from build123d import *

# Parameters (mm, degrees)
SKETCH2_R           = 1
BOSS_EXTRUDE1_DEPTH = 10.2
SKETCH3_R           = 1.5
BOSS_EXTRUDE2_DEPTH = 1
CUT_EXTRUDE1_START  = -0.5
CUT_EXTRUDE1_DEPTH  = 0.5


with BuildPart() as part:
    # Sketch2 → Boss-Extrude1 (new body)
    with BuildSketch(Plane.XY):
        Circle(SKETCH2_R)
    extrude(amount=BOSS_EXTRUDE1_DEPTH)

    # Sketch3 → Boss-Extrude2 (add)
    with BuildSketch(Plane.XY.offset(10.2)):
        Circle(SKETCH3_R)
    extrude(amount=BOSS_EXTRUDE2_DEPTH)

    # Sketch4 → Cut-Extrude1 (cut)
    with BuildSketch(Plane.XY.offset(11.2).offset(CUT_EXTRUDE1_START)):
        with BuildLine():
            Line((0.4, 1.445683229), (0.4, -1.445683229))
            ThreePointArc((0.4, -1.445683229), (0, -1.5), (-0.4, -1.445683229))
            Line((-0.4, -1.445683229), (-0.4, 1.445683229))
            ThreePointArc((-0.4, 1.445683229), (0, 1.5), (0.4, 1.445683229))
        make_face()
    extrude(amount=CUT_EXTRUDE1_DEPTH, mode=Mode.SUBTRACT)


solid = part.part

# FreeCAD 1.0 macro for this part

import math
import FreeCAD as App
import Part
import Sketcher
Q = App.Units.Quantity

doc = App.newDocument("Part")
body = doc.addObject("PartDesign::Body", "Body")

sketch1 = doc.addObject("Sketcher::SketchObject", "Sketch")
body.addObject(sketch1)
sketch1.AttachmentSupport = (doc.XY_Plane, [""])
sketch1.MapMode = "FlatFace"
sketch1.addGeometry(Part.Circle(App.Vector(0, 0, 0), App.Vector(0, 0, 1), 1), False)
sketch1.addConstraint(Sketcher.Constraint("Coincident", 0, 3, -1, 1))
sketch1.addConstraint(Sketcher.Constraint("Diameter", 0, Q("2 mm")))
pad1 = doc.addObject("PartDesign::Pad", "Pad")
body.addObject(pad1)
pad1.Profile = sketch1
pad1.Length = 10.2

sketch2 = doc.addObject("Sketcher::SketchObject", "Sketch001")
body.addObject(sketch2)
sketch2.AttachmentSupport = (doc.XY_Plane, [""])
sketch2.MapMode = "FlatFace"
sketch2.AttachmentOffset = App.Placement(App.Vector(0, 0, 10.2), App.Rotation())
sketch2.addGeometry(Part.Circle(App.Vector(0, 0, 0), App.Vector(0, 0, 1), 1.5), False)
sketch2.addConstraint(Sketcher.Constraint("Coincident", 0, 3, -1, 1))
sketch2.addConstraint(Sketcher.Constraint("Diameter", 0, Q("3 mm")))
pad2 = doc.addObject("PartDesign::Pad", "Pad001")
body.addObject(pad2)
pad2.Profile = sketch2
pad2.Length = 1

sketch3 = doc.addObject("Sketcher::SketchObject", "Sketch002")
body.addObject(sketch3)
sketch3.AttachmentSupport = (doc.XY_Plane, [""])
sketch3.MapMode = "FlatFace"
sketch3.AttachmentOffset = App.Placement(App.Vector(0, 0, 10.7), App.Rotation())
sketch3.addGeometry(Part.LineSegment(App.Vector(0.4, -1.4, 0), App.Vector(0.4, 1.4, 0)), False)
sketch3.addGeometry(Part.ArcOfCircle(Part.Circle(App.Vector(0, 0, 0), App.Vector(0, 0, 1), 1.5), math.radians(75), math.radians(105)), False)
sketch3.addGeometry(Part.LineSegment(App.Vector(-0.4, 1.4, 0), App.Vector(-0.4, -1.4, 0)), False)
sketch3.addGeometry(Part.ArcOfCircle(Part.Circle(App.Vector(0, 0, 0), App.Vector(0, 0, 1), 1.5), math.radians(-105), math.radians(-75)), False)
sketch3.addConstraint(Sketcher.Constraint("Coincident", 0, 2, 1, 1))
sketch3.addConstraint(Sketcher.Constraint("Coincident", 1, 2, 2, 1))
sketch3.addConstraint(Sketcher.Constraint("Coincident", 2, 2, 3, 1))
sketch3.addConstraint(Sketcher.Constraint("Coincident", 3, 2, 0, 1))
sketch3.addConstraint(Sketcher.Constraint("Vertical", 0))
sketch3.addConstraint(Sketcher.Constraint("Vertical", 2))
sketch3.addConstraint(Sketcher.Constraint("Coincident", 1, 3, -1, 1))
sketch3.addConstraint(Sketcher.Constraint("Coincident", 3, 3, -1, 1))
sketch3.addConstraint(Sketcher.Constraint("Equal", 1, 3))
sketch3.addConstraint(Sketcher.Constraint("Horizontal", 0, 2, 1, 2))
sketch3.addConstraint(Sketcher.Constraint("Radius", 1, Q("1.5 mm")))
sketch3.addConstraint(Sketcher.Constraint("DistanceX", -1, 1, 0, 2, Q("0.4 mm")))
pocket1 = doc.addObject("PartDesign::Pocket", "Pocket")
body.addObject(pocket1)
pocket1.Profile = sketch3
pocket1.Length = 0.5
pocket1.Reversed = True

doc.recompute()
